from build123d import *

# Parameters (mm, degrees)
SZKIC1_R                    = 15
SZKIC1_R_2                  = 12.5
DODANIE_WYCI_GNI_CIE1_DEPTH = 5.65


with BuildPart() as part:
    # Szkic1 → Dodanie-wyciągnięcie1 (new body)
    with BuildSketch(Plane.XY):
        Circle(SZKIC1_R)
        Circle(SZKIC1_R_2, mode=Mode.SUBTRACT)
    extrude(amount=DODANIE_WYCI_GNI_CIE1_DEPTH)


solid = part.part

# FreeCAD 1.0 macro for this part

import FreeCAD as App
import Part
import Sketcher
from FreeCAD import Vector
Q = App.Units.Quantity

doc = App.newDocument("Part")
params = doc.addObject("Spreadsheet::Sheet", "Params")
for row, (alias, value) in enumerate([
    ("sketch1_diameter", "30 mm"),
    ("sketch1_diameter2", "25 mm"),
    ("pad1_length", "5.65 mm"),
], start=1):
    params.set(f"A{row}", alias)
    params.set(f"B{row}", "=" + value)
    params.setAlias(f"B{row}", alias)

body = doc.addObject("PartDesign::Body", "Body")

# Sketch on XY plane
sketch1 = doc.addObject("Sketcher::SketchObject", "Sketch")
body.addObject(sketch1)
sketch1.AttachmentSupport = (doc.XY_Plane, [""])
sketch1.MapMode = "FlatFace"
sketch1.addGeometry([
    Part.Circle(Vector(0, 0, 0), Vector(0, 0, 1), 15),
    Part.Circle(Vector(0, 0, 0), Vector(0, 0, 1), 12.5),
], False)
sketch1.addConstraint([
    Sketcher.Constraint("Coincident", 0, 3, -1, 1),
    Sketcher.Constraint("Coincident", 1, 3, -1, 1),
    Sketcher.Constraint("Diameter", 0, Q("30 mm")),
    Sketcher.Constraint("Diameter", 1, Q("25 mm")),
])
sketch1.setExpression("Constraints[2]", "Params.sketch1_diameter")
sketch1.setExpression("Constraints[3]", "Params.sketch1_diameter2")
pad1 = doc.addObject("PartDesign::Pad", "Pad")
body.addObject(pad1)
pad1.Profile = sketch1
pad1.setExpression("Length", "Params.pad1_length")

doc.recompute()
